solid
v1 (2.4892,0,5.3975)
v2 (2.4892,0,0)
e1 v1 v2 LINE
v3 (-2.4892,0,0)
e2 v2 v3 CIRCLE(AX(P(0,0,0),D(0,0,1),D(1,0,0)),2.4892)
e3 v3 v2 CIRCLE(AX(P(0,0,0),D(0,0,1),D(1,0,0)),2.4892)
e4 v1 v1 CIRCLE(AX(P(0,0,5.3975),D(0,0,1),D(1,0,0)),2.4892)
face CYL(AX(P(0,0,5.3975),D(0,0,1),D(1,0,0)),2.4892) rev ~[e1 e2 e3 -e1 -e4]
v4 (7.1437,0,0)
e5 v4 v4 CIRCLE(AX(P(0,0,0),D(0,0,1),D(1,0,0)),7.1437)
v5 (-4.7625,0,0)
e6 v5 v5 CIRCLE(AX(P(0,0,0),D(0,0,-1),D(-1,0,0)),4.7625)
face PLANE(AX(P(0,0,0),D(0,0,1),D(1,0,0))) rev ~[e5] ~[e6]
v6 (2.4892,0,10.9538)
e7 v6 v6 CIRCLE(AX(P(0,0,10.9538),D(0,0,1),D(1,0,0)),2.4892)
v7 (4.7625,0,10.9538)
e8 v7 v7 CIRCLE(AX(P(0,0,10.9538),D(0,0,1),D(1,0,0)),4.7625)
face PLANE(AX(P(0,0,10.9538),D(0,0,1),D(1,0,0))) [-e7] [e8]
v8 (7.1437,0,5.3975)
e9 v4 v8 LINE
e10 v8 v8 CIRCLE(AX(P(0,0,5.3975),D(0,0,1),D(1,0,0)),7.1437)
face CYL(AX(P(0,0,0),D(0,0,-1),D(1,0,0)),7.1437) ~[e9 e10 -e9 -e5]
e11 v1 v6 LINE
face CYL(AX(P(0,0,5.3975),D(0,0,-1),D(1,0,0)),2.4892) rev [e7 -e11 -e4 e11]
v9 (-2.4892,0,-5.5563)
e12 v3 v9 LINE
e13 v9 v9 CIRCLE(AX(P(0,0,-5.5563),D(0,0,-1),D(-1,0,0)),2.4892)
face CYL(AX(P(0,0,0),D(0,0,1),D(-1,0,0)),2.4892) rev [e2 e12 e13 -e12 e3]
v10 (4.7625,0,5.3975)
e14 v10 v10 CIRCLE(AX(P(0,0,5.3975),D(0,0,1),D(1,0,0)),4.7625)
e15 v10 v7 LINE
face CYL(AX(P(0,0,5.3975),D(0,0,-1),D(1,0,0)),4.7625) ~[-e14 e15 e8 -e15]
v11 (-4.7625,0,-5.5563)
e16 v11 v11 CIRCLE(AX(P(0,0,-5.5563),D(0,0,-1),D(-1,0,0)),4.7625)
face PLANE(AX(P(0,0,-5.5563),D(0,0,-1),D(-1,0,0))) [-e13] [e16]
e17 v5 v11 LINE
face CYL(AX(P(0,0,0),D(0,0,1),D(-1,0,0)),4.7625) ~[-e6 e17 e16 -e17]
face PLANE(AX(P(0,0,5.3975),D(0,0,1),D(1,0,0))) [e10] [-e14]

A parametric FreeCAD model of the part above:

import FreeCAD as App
import Part
import Sketcher

V = App.Vector
Q = App.Units.Quantity

doc = App.newDocument("Part")
body = doc.addObject("PartDesign::Body", "Body")

sketch1 = body.newObject("Sketcher::SketchObject", "Sketch")
sketch1.AttachmentSupport = (doc.getObject("XY_Plane"), [""])
sketch1.MapMode = "FlatFace"
sketch1.addGeometry(Part.Circle(V(0, 0, 0), V(0, 0, 1), 7), False)
sketch1.addConstraint([
    Sketcher.Constraint("Coincident", 0, 3, -1, 1),
    Sketcher.Constraint("Diameter", 0, Q("0.5625 in")),
])
pad1 = body.newObject("PartDesign::Pad", "Pad")
pad1.Profile = sketch1
pad1.Length = Q("0.2125 in")

sketch2 = body.newObject("Sketcher::SketchObject", "Sketch001")
sketch2.AttachmentSupport = (doc.getObject("XY_Plane"), [""])
sketch2.MapMode = "FlatFace"
sketch2.AttachmentOffset = App.Placement(V(0, 0, 0.2125 * 25.4), App.Rotation())
sketch2.addGeometry(Part.Circle(V(0, 0, 0), V(0, 0, 1), 2.5), False)
sketch2.addConstraint([
    Sketcher.Constraint("Coincident", 0, 3, -1, 1),
    Sketcher.Constraint("Diameter", 0, Q("0.196 in")),
])
pocket1 = body.newObject("PartDesign::Pocket", "Pocket")
pocket1.Profile = sketch2
pocket1.Type = "ThroughAll"

sketch3 = body.newObject("Sketcher::SketchObject", "Sketch002")
sketch3.AttachmentSupport = (doc.getObject("XY_Plane"), [""])
sketch3.MapMode = "FlatFace"
sketch3.AttachmentOffset = App.Placement(V(0, 0, 0.2125 * 25.4), App.Rotation())
sketch3.addGeometry([
    Part.Circle(V(0, 0, 0), V(0, 0, 1), 4.8),
    Part.Circle(V(0, 0, 0), V(0, 0, 1), 2.5),
], False)
sketch3.addConstraint([
    Sketcher.Constraint("Coincident", 0, 3, -1, 1),
    Sketcher.Constraint("Coincident", 1, 3, -1, 1),
    Sketcher.Constraint("Diameter", 0, Q("0.375 in")),
    Sketcher.Constraint("Diameter", 1, Q("0.196 in")),
])
pad2 = body.newObject("PartDesign::Pad", "Pad001")
pad2.Profile = sketch3
pad2.Length = Q("0.218752 in")

sketch4 = body.newObject("Sketcher::SketchObject", "Sketch003")
sketch4.AttachmentSupport = (doc.getObject("XY_Plane"), [""])
sketch4.MapMode = "FlatFace"
sketch4.addGeometry([
    Part.Circle(V(0, 0, 0), V(0, 0, 1), 4.8),
    Part.Circle(V(0, 0, 0), V(0, 0, 1), 2.5),
], False)
sketch4.addConstraint([
    Sketcher.Constraint("Coincident", 0, 3, -1, 1),
    Sketcher.Constraint("Coincident", 1, 3, -1, 1),
    Sketcher.Constraint("Diameter", 0, Q("0.375 in")),
    Sketcher.Constraint("Diameter", 1, Q("0.196 in")),
])
pad3 = body.newObject("PartDesign::Pad", "Pad002")
pad3.Profile = sketch4
pad3.Length = Q("0.218752 in")
pad3.Reversed = True

doc.recompute()
